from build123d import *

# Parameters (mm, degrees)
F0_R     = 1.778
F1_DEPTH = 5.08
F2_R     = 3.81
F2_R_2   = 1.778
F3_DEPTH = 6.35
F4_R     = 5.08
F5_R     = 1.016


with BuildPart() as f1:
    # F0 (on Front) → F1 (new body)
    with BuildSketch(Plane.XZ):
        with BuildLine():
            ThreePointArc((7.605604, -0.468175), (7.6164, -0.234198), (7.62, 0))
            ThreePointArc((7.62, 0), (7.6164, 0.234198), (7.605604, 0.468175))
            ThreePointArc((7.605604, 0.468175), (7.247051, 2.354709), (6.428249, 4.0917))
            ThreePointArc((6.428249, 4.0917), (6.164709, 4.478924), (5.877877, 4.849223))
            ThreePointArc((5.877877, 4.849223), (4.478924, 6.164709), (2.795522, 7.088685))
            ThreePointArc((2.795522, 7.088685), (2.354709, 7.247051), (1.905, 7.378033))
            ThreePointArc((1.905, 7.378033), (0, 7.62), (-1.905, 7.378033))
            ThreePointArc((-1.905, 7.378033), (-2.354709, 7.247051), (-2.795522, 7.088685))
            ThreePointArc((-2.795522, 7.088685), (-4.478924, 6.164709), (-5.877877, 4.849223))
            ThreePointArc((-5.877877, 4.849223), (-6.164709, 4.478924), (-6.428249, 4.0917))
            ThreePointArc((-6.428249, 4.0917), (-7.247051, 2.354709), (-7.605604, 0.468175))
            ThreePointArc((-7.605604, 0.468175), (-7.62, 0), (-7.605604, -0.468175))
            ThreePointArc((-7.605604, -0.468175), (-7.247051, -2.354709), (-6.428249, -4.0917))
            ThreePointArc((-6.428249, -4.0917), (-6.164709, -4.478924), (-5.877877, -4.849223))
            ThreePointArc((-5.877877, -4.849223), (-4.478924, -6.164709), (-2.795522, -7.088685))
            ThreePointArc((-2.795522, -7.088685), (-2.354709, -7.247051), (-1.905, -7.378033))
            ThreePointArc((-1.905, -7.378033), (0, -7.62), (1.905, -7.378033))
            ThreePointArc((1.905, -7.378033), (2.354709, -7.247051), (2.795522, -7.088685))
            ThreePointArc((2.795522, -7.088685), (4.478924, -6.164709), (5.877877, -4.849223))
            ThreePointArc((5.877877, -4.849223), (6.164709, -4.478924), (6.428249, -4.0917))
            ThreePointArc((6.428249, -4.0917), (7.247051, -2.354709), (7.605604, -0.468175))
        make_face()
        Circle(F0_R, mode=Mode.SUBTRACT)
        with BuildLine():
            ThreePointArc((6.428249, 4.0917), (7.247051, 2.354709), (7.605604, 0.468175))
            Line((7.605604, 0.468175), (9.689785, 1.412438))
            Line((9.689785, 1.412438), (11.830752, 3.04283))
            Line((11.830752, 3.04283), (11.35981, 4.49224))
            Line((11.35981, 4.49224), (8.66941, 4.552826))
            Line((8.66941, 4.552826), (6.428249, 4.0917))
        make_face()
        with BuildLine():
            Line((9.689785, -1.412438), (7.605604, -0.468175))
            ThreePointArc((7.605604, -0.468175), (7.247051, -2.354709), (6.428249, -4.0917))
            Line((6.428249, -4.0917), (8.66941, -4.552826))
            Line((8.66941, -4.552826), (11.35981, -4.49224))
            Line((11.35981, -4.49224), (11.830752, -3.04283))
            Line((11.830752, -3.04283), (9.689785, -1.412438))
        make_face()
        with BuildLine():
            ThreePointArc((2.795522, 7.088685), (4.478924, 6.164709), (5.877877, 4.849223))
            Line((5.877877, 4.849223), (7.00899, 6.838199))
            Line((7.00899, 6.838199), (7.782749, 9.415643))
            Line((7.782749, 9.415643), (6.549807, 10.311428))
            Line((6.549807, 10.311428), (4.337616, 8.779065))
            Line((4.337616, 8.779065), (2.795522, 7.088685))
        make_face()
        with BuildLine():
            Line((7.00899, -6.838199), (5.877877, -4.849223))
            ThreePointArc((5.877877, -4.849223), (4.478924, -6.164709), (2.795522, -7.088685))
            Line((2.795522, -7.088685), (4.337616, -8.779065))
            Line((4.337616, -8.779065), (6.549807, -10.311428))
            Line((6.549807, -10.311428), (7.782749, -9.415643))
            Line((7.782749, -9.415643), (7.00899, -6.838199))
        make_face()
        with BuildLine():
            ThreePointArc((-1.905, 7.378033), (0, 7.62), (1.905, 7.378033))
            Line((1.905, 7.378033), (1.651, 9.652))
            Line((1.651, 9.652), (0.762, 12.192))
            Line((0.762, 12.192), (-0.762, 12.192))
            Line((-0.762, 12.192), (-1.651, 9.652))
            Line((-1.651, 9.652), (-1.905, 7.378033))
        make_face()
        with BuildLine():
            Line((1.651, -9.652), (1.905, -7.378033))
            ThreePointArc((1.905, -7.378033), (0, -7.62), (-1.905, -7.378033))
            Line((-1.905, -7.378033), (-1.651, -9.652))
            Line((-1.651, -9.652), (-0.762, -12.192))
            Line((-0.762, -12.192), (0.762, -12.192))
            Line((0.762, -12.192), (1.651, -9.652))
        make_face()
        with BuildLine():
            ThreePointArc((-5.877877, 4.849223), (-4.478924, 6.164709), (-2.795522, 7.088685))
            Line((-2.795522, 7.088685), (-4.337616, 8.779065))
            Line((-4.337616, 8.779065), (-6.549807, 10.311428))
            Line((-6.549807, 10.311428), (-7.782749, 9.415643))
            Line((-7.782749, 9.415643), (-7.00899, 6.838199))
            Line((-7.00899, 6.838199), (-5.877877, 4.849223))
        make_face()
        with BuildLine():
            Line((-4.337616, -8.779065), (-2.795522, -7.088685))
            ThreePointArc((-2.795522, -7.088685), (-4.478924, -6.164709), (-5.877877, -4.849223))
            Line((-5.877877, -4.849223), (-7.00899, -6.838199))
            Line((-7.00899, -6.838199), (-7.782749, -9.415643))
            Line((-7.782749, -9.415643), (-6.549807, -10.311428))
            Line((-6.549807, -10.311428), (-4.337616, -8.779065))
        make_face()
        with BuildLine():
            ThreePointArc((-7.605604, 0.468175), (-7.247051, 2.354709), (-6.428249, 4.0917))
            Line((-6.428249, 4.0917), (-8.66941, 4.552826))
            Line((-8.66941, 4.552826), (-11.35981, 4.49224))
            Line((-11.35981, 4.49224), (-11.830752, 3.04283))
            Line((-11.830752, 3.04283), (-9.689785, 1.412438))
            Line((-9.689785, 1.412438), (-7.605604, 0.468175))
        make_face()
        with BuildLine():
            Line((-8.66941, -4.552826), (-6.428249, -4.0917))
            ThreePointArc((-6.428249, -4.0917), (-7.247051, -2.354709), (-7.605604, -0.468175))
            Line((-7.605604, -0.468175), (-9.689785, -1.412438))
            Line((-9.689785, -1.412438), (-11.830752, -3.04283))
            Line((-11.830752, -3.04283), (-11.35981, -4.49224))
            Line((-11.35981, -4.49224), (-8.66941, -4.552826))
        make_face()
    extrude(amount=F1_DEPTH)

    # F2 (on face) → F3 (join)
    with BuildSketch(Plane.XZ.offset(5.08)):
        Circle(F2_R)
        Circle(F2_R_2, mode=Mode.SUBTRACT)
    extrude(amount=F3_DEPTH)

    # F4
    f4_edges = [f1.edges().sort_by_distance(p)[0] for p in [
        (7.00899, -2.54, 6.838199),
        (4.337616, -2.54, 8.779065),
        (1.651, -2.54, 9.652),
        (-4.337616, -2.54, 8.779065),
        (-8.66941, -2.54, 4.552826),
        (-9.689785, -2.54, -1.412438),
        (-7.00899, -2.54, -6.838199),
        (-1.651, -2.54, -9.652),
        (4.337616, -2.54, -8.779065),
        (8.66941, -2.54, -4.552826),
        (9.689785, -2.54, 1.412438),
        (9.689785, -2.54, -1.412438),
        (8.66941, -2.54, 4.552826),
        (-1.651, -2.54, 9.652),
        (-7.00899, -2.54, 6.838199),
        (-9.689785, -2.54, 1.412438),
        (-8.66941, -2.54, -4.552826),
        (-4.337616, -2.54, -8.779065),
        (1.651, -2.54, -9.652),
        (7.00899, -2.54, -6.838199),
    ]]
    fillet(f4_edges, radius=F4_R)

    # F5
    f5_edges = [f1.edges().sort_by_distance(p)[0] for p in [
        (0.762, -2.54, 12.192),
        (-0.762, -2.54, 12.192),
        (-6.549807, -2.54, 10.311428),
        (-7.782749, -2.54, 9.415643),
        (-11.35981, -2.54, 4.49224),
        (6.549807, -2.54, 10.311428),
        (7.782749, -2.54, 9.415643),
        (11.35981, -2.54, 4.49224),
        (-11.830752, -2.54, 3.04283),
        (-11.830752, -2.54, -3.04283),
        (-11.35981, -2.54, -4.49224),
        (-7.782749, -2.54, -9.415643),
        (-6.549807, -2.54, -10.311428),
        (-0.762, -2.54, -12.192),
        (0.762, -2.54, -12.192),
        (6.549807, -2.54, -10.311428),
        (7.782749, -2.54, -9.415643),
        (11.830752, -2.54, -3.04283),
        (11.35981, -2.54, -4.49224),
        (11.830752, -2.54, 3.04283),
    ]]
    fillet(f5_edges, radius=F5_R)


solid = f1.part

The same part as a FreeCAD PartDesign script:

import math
import FreeCAD as App
import Part
import Sketcher
Q = App.Units.Quantity


def edges_at(feature, points):
    """Names of the edges that pass closest to the given points."""
    edges = feature.Shape.Edges
    near = lambda p: min(range(len(edges)), key=lambda i: edges[i].distToShape(Part.Vertex(*p))[0])
    return sorted({f"Edge{near(p) + 1}" for p in points})

doc = App.newDocument("Part")
params = doc.addObject("Spreadsheet::Sheet", "Params")
for row, (alias, value) in enumerate([
    ("sketch1_radius", "0.3 in"),
    ("sketch1_diameter", "0.14 in"),
    ("sketch1_width", "0.06 in"),
    ("sketch1_length", "0.06 in"),
    ("pad1_length", "0.2 in"),
    ("sketch2_diameter", "0.3 in"),
    ("sketch2_diameter2", "0.14 in"),
    ("pad2_length", "0.25 in"),
    ("fillet_radius", "0.2 in"),
    ("fillet2_radius", "0.04 in"),
], start=1):
    params.set(f"A{row}", alias)
    params.set(f"B{row}", "=" + value)
    params.setAlias(f"B{row}", alias)

body = doc.addObject("PartDesign::Body", "Body")

# Sketch on XZ plane
sketch1 = body.newObject("Sketcher::SketchObject", "Sketch")
sketch1.AttachmentSupport = (doc.getObject("XZ_Plane"), [""])
sketch1.MapMode = "FlatFace"
sketch1.addGeometry([
    Part.ArcOfCircle(Part.Circle(App.Vector(-0.000327, 0.00001, 0), App.Vector(0, 0, 1), 7.620327), math.radians(-3.522412), math.radians(-0.000075)),  # 0
    Part.ArcOfCircle(Part.Circle(App.Vector(-0.000327, -0.00001, 0), App.Vector(0, 0, 1), 7.620327), math.radians(0.000075), math.radians(3.522412)),  # 1
    Part.LineSegment(App.Vector(7.605604, 0.468175, 0), App.Vector(9.689785, 1.412438, 0)),  # 2
    Part.LineSegment(App.Vector(9.689785, 1.412438, 0), App.Vector(11.830752, 3.04283, 0)),  # 3
    Part.LineSegment(App.Vector(11.830752, 3.04283, 0), App.Vector(11.35981, 4.49224, 0)),  # 4
    Part.LineSegment(App.Vector(11.35981, 4.49224, 0), App.Vector(8.66941, 4.552826, 0)),  # 5
    Part.LineSegment(App.Vector(8.66941, 4.552826, 0), App.Vector(6.428249, 4.0917, 0)),  # 6
    Part.ArcOfCircle(Part.Circle(App.Vector(-0.000021, -0.00001, 0), App.Vector(0, 0, 1), 7.620023), math.radians(32.477491), math.radians(39.522442)),  # 7
    Part.LineSegment(App.Vector(5.877877, 4.849223, 0), App.Vector(7.00899, 6.838199, 0)),  # 8
    Part.LineSegment(App.Vector(7.00899, 6.838199, 0), App.Vector(7.782749, 9.415643, 0)),  # 9
    Part.LineSegment(App.Vector(7.782749, 9.415643, 0), App.Vector(6.549807, 10.311428, 0)),  # 10
    Part.LineSegment(App.Vector(6.549807, 10.311428, 0), App.Vector(4.337616, 8.779065, 0)),  # 11
    Part.LineSegment(App.Vector(4.337616, 8.779065, 0), App.Vector(2.795522, 7.088685, 0)),  # 12
    Part.ArcOfCircle(Part.Circle(App.Vector(0.000061, 0.000183, 0), App.Vector(0, 0, 1), 7.619807), math.radians(68.47743), math.radians(75.522586)),  # 13
    Part.LineSegment(App.Vector(1.905, 7.378033, 0), App.Vector(1.651, 9.652, 0)),  # 14
    Part.LineSegment(App.Vector(1.651, 9.652, 0), App.Vector(0.762, 12.192, 0)),  # 15
    Part.LineSegment(App.Vector(0.762, 12.192, 0), App.Vector(-0.762, 12.192, 0)),  # 16
    Part.LineSegment(App.Vector(-0.762, 12.192, 0), App.Vector(-1.651, 9.652, 0)),  # 17
    Part.LineSegment(App.Vector(-1.651, 9.652, 0), App.Vector(-1.905, 7.378033, 0)),  # 18
    Part.ArcOfCircle(Part.Circle(App.Vector(-0.000061, 0.000183, 0), App.Vector(0, 0, 1), 7.619807), math.radians(104.477414), math.radians(111.52257)),  # 19
    Part.LineSegment(App.Vector(-2.795522, 7.088685, 0), App.Vector(-4.337616, 8.779065, 0)),  # 20
    Part.LineSegment(App.Vector(-4.337616, 8.779065, 0), App.Vector(-6.549807, 10.311428, 0)),  # 21
    Part.LineSegment(App.Vector(-6.549807, 10.311428, 0), App.Vector(-7.782749, 9.415643, 0)),  # 22
    Part.LineSegment(App.Vector(-7.782749, 9.415643, 0), App.Vector(-7.00899, 6.838199, 0)),  # 23
    Part.LineSegment(App.Vector(-7.00899, 6.838199, 0), App.Vector(-5.877877, 4.849223, 0)),  # 24
    Part.ArcOfCircle(Part.Circle(App.Vector(0.000021, -0.00001, 0), App.Vector(0, 0, 1), 7.620023), math.radians(140.477558), math.radians(147.522509)),  # 25
    Part.LineSegment(App.Vector(-6.428249, 4.0917, 0), App.Vector(-8.66941, 4.552826, 0)),  # 26
    Part.LineSegment(App.Vector(-8.66941, 4.552826, 0), App.Vector(-11.35981, 4.49224, 0)),  # 27
    Part.LineSegment(App.Vector(-11.35981, 4.49224, 0), App.Vector(-11.830752, 3.04283, 0)),  # 28
    Part.LineSegment(App.Vector(-11.830752, 3.04283, 0), App.Vector(-9.689785, 1.412438, 0)),  # 29
    Part.LineSegment(App.Vector(-9.689785, 1.412438, 0), App.Vector(-7.605604, 0.468175, 0)),  # 30
    Part.ArcOfCircle(Part.Circle(App.Vector(0.000001, 0, 0), App.Vector(0, 0, 1), 7.620001), math.radians(176.477513), math.radians(183.522487)),  # 31
    Part.LineSegment(App.Vector(-7.605604, -0.468175, 0), App.Vector(-9.689785, -1.412438, 0)),  # 32
    Part.LineSegment(App.Vector(-9.689785, -1.412438, 0), App.Vector(-11.830752, -3.04283, 0)),  # 33
    Part.LineSegment(App.Vector(-11.830752, -3.04283, 0), App.Vector(-11.35981, -4.49224, 0)),  # 34
    Part.LineSegment(App.Vector(-11.35981, -4.49224, 0), App.Vector(-8.66941, -4.552826, 0)),  # 35
    Part.LineSegment(App.Vector(-8.66941, -4.552826, 0), App.Vector(-6.428249, -4.0917, 0)),  # 36
    Part.ArcOfCircle(Part.Circle(App.Vector(0.000021, 0.00001, 0), App.Vector(0, 0, 1), 7.620023), math.radians(-147.522509), math.radians(-140.477558)),  # 37
    Part.LineSegment(App.Vector(-5.877877, -4.849223, 0), App.Vector(-7.00899, -6.838199, 0)),  # 38
    Part.LineSegment(App.Vector(-7.00899, -6.838199, 0), App.Vector(-7.782749, -9.415643, 0)),  # 39
    Part.LineSegment(App.Vector(-7.782749, -9.415643, 0), App.Vector(-6.549807, -10.311428, 0)),  # 40
    Part.LineSegment(App.Vector(-6.549807, -10.311428, 0), App.Vector(-4.337616, -8.779065, 0)),  # 41
    Part.LineSegment(App.Vector(-4.337616, -8.779065, 0), App.Vector(-2.795522, -7.088685, 0)),  # 42
    Part.ArcOfCircle(Part.Circle(App.Vector(-0.000061, -0.000183, 0), App.Vector(0, 0, 1), 7.619807), math.radians(-111.52257), math.radians(-104.477414)),  # 43
    Part.LineSegment(App.Vector(-1.905, -7.378033, 0), App.Vector(-1.651, -9.652, 0)),  # 44
    Part.LineSegment(App.Vector(-1.651, -9.652, 0), App.Vector(-0.762, -12.192, 0)),  # 45
    Part.LineSegment(App.Vector(-0.762, -12.192, 0), App.Vector(0.762, -12.192, 0)),  # 46
    Part.LineSegment(App.Vector(0.762, -12.192, 0), App.Vector(1.651, -9.652, 0)),  # 47
    Part.LineSegment(App.Vector(1.651, -9.652, 0), App.Vector(1.905, -7.378033, 0)),  # 48
    Part.ArcOfCircle(Part.Circle(App.Vector(0.000061, -0.000183, 0), App.Vector(0, 0, 1), 7.619807), math.radians(-75.522586), math.radians(-68.47743)),  # 49
    Part.LineSegment(App.Vector(2.795522, -7.088685, 0), App.Vector(4.337616, -8.779065, 0)),  # 50
    Part.LineSegment(App.Vector(4.337616, -8.779065, 0), App.Vector(6.549807, -10.311428, 0)),  # 51
    Part.LineSegment(App.Vector(6.549807, -10.311428, 0), App.Vector(7.782749, -9.415643, 0)),  # 52
    Part.LineSegment(App.Vector(7.782749, -9.415643, 0), App.Vector(7.00899, -6.838199, 0)),  # 53
    Part.LineSegment(App.Vector(7.00899, -6.838199, 0), App.Vector(5.877877, -4.849223, 0)),  # 54
    Part.ArcOfCircle(Part.Circle(App.Vector(-0.000021, 0.00001, 0), App.Vector(0, 0, 1), 7.620023), math.radians(-39.522442), math.radians(-32.477491)),  # 55
    Part.LineSegment(App.Vector(6.428249, -4.0917, 0), App.Vector(8.66941, -4.552826, 0)),  # 56
    Part.LineSegment(App.Vector(8.66941, -4.552826, 0), App.Vector(11.35981, -4.49224, 0)),  # 57
    Part.LineSegment(App.Vector(11.35981, -4.49224, 0), App.Vector(11.830752, -3.04283, 0)),  # 58
    Part.LineSegment(App.Vector(11.830752, -3.04283, 0), App.Vector(9.689785, -1.412438, 0)),  # 59
    Part.LineSegment(App.Vector(9.689785, -1.412438, 0), App.Vector(7.605604, -0.468175, 0)),  # 60
    Part.Circle(App.Vector(0, 0, 0), App.Vector(0, 0, 1), 1.778),  # 61
], False)
sketch1.addConstraint([
    Sketcher.Constraint("Coincident", 0, 2, 1, 1),
    Sketcher.Constraint("Coincident", 1, 2, 2, 1),
    Sketcher.Constraint("Coincident", 2, 2, 3, 1),
    Sketcher.Constraint("Coincident", 3, 2, 4, 1),
    Sketcher.Constraint("Coincident", 4, 2, 5, 1),
    Sketcher.Constraint("Coincident", 5, 2, 6, 1),
    Sketcher.Constraint("Coincident", 6, 2, 7, 1),
    Sketcher.Constraint("Coincident", 7, 2, 8, 1),
    Sketcher.Constraint("Coincident", 8, 2, 9, 1),
    Sketcher.Constraint("Coincident", 9, 2, 10, 1),
    Sketcher.Constraint("Coincident", 10, 2, 11, 1),
    Sketcher.Constraint("Coincident", 11, 2, 12, 1),
    Sketcher.Constraint("Coincident", 12, 2, 13, 1),
    Sketcher.Constraint("Coincident", 13, 2, 14, 1),
    Sketcher.Constraint("Coincident", 14, 2, 15, 1),
    Sketcher.Constraint("Coincident", 15, 2, 16, 1),
    Sketcher.Constraint("Coincident", 16, 2, 17, 1),
    Sketcher.Constraint("Coincident", 17, 2, 18, 1),
    Sketcher.Constraint("Coincident", 18, 2, 19, 1),
    Sketcher.Constraint("Coincident", 19, 2, 20, 1),
    Sketcher.Constraint("Coincident", 20, 2, 21, 1),
    Sketcher.Constraint("Coincident", 21, 2, 22, 1),
    Sketcher.Constraint("Coincident", 22, 2, 23, 1),
    Sketcher.Constraint("Coincident", 23, 2, 24, 1),
    Sketcher.Constraint("Coincident", 24, 2, 25, 1),
    Sketcher.Constraint("Coincident", 25, 2, 26, 1),
    Sketcher.Constraint("Coincident", 26, 2, 27, 1),
    Sketcher.Constraint("Coincident", 27, 2, 28, 1),
    Sketcher.Constraint("Coincident", 28, 2, 29, 1),
    Sketcher.Constraint("Coincident", 29, 2, 30, 1),
    Sketcher.Constraint("Coincident", 30, 2, 31, 1),
    Sketcher.Constraint("Coincident", 31, 2, 32, 1),
    Sketcher.Constraint("Coincident", 32, 2, 33, 1),
    Sketcher.Constraint("Coincident", 33, 2, 34, 1),
    Sketcher.Constraint("Coincident", 34, 2, 35, 1),
    Sketcher.Constraint("Coincident", 35, 2, 36, 1),
    Sketcher.Constraint("Coincident", 36, 2, 37, 1),
    Sketcher.Constraint("Coincident", 37, 2, 38, 1),
    Sketcher.Constraint("Coincident", 38, 2, 39, 1),
    Sketcher.Constraint("Coincident", 39, 2, 40, 1),
    Sketcher.Constraint("Coincident", 40, 2, 41, 1),
    Sketcher.Constraint("Coincident", 41, 2, 42, 1),
    Sketcher.Constraint("Coincident", 42, 2, 43, 1),
    Sketcher.Constraint("Coincident", 43, 2, 44, 1),
    Sketcher.Constraint("Coincident", 44, 2, 45, 1),
    Sketcher.Constraint("Coincident", 45, 2, 46, 1),
    Sketcher.Constraint("Coincident", 46, 2, 47, 1),
    Sketcher.Constraint("Coincident", 47, 2, 48, 1),
    Sketcher.Constraint("Coincident", 48, 2, 49, 1),
    Sketcher.Constraint("Coincident", 49, 2, 50, 1),
    Sketcher.Constraint("Coincident", 50, 2, 51, 1),
    Sketcher.Constraint("Coincident", 51, 2, 52, 1),
    Sketcher.Constraint("Coincident", 52, 2, 53, 1),
    Sketcher.Constraint("Coincident", 53, 2, 54, 1),
    Sketcher.Constraint("Coincident", 54, 2, 55, 1),
    Sketcher.Constraint("Coincident", 55, 2, 56, 1),
    Sketcher.Constraint("Coincident", 56, 2, 57, 1),
    Sketcher.Constraint("Coincident", 57, 2, 58, 1),
    Sketcher.Constraint("Coincident", 58, 2, 59, 1),
    Sketcher.Constraint("Coincident", 59, 2, 60, 1),
    Sketcher.Constraint("Coincident", 60, 2, 0, 1),
    Sketcher.Constraint("Horizontal", 16),
    Sketcher.Constraint("Horizontal", 46),
    Sketcher.Constraint("Coincident", 31, 3, -1, 1),
    Sketcher.Constraint("Coincident", 61, 3, -1, 1),
    Sketcher.Constraint("Equal", 0, 1),
    Sketcher.Constraint("Equal", 13, 19),
    Sketcher.Constraint("Equal", 7, 25),
    Sketcher.Constraint("Equal", 25, 37),
    Sketcher.Constraint("Equal", 19, 43),
    Sketcher.Constraint("Equal", 43, 49),
    Sketcher.Constraint("Equal", 37, 55),
    Sketcher.Constraint("Symmetric", 7, 3, 37, 3, -1, 1),
    Sketcher.Constraint("Symmetric", 13, 3, 43, 3, -1, 1),
    Sketcher.Constraint("Symmetric", 19, 3, 49, 3, -1, 1),
    Sketcher.Constraint("Symmetric", 25, 3, 55, 3, -1, 1),
    Sketcher.Constraint("Symmetric", 1, 2, 31, 2, -1, 1),
    Sketcher.Constraint("Symmetric", 2, 2, 32, 2, -1, 1),
    Sketcher.Constraint("Symmetric", 3, 2, 33, 2, -1, 1),
    Sketcher.Constraint("Symmetric", 4, 2, 34, 2, -1, 1),
    Sketcher.Constraint("Symmetric", 5, 2, 35, 2, -1, 1),
    Sketcher.Constraint("Symmetric", 8, 2, 38, 2, -1, 1),
    Sketcher.Constraint("Symmetric", 9, 2, 39, 2, -1, 1),
    Sketcher.Constraint("Symmetric", 10, 2, 40, 2, -1, 1),
    Sketcher.Constraint("Symmetric", 11, 2, 41, 2, -1, 1),
    Sketcher.Constraint("Symmetric", 14, 2, 44, 2, -1, 1),
    Sketcher.Constraint("Symmetric", 15, 2, 45, 2, -1, 1),
    Sketcher.Constraint("Symmetric", 17, 2, 47, 2, -1, 1),
    Sketcher.Constraint("Symmetric", 20, 2, 50, 2, -1, 1),
    Sketcher.Constraint("Symmetric", 21, 2, 51, 2, -1, 1),
    Sketcher.Constraint("Symmetric", 22, 2, 52, 2, -1, 1),
    Sketcher.Constraint("Symmetric", 23, 2, 53, 2, -1, 1),
    Sketcher.Constraint("Symmetric", 26, 2, 56, 2, -1, 1),
    Sketcher.Constraint("Symmetric", 27, 2, 57, 2, -1, 1),
    Sketcher.Constraint("Symmetric", 28, 2, 58, 2, -1, 1),
    Sketcher.Constraint("Symmetric", 29, 2, 59, 2, -1, 1),
    Sketcher.Constraint("Symmetric", 30, 2, 60, 2, -1, 1),
    Sketcher.Constraint("Symmetric", 13, 3, 19, 3, -2),
    Sketcher.Constraint("Symmetric", 7, 3, 25, 3, -2),
    Sketcher.Constraint("Symmetric", 14, 2, 17, 2, -2),
    Sketcher.Constraint("Symmetric", 11, 2, 20, 2, -2),
    Sketcher.Constraint("Symmetric", 10, 2, 21, 2, -2),
    Sketcher.Constraint("Symmetric", 9, 2, 22, 2, -2),
    Sketcher.Constraint("Symmetric", 8, 2, 23, 2, -2),
    Sketcher.Constraint("Symmetric", 5, 2, 26, 2, -2),
    Sketcher.Constraint("Symmetric", 4, 2, 27, 2, -2),
    Sketcher.Constraint("Symmetric", 3, 2, 28, 2, -2),
    Sketcher.Constraint("Symmetric", 2, 2, 29, 2, -2),
    Sketcher.Constraint("PointOnObject", 0, 2, -1),
    Sketcher.Constraint("Parallel", 6, 36),
    Sketcher.Constraint("Parallel", 8, 38),
    Sketcher.Constraint("Parallel", 12, 42),
    Sketcher.Constraint("Parallel", 14, 44),
    Sketcher.Constraint("Parallel", 17, 47),
    Sketcher.Constraint("Parallel", 18, 48),
    Sketcher.Constraint("Parallel", 20, 50),
    Sketcher.Constraint("Parallel", 24, 54),
    Sketcher.Constraint("Parallel", 26, 56),
    Sketcher.Constraint("Horizontal", 1, 3, 7, 3),
    Sketcher.Constraint("Horizontal", 13, 2, 18, 2),
    Sketcher.Constraint("Horizontal", 12, 2, 19, 2),
    Sketcher.Constraint("Horizontal", 7, 2, 24, 2),
    Sketcher.Constraint("Horizontal", 6, 2, 25, 2),
    Sketcher.Constraint("Horizontal", 1, 2, 30, 2),
    Sketcher.Constraint("Vertical", 16, 2, 45, 2),
    Sketcher.Constraint("Equal", 3, 5),
    Sketcher.Constraint("Equal", 2, 6),
    Sketcher.Constraint("Equal", 6, 8),
    Sketcher.Constraint("Equal", 5, 9),
    Sketcher.Constraint("Equal", 4, 10),
    Sketcher.Constraint("Equal", 9, 11),
    Sketcher.Constraint("Equal", 8, 12),
    Sketcher.Constraint("Equal", 12, 14),
    Sketcher.Constraint("Equal", 11, 15),
    Sketcher.Constraint("Radius", 31, Q("0.3 in")),
    Sketcher.Constraint("Diameter", 61, Q("0.14 in")),
    Sketcher.Constraint("Angle", 4, Q("108.000005 deg")),
    Sketcher.Constraint("Angle", 10, Q("143.999994 deg")),
    Sketcher.Constraint("DistanceX", 16, 2, 16, 1, Q("0.06 in")),
    Sketcher.Constraint("DistanceX", -1, 1, 0, 2, Q("0.3 in")),
    Sketcher.Constraint("Distance", 4, Q("0.06 in")),
    Sketcher.Constraint("DistanceY", -1, 1, 14, 2, Q("0.38 in")),
    Sketcher.Constraint("DistanceY", -1, 1, 15, 2, Q("0.48 in")),
    Sketcher.Constraint("DistanceX", -1, 1, 13, 2, Q("0.075 in")),
    Sketcher.Constraint("DistanceX", -1, 1, 14, 2, Q("0.065 in")),
    Sketcher.Constraint("Radius", 0, Q("7.620327 mm")),
    Sketcher.Constraint("Radius", 7, Q("7.620023 mm")),
    Sketcher.Constraint("Radius", 13, Q("7.619807 mm")),
    Sketcher.Constraint("DistanceY", -1, 1, 6, 2, Q("4.0917 mm")),
    Sketcher.Constraint("DistanceY", -1, 1, 8, 2, Q("6.838199 mm")),
    Sketcher.Constraint("Distance", 2, Q("2.288109 mm")),
    Sketcher.Constraint("DistanceY", -1, 1, 2, 2, Q("1.412438 mm")),
    Sketcher.Constraint("DistanceY", -1, 1, 3, 2, Q("3.04283 mm")),
    Sketcher.Constraint("DistanceX", -1, 1, 4, 2, Q("11.35981 mm")),
    Sketcher.Constraint("DistanceX", -1, 1, 5, 2, Q("8.66941 mm")),
    Sketcher.Constraint("DistanceX", -1, 1, 8, 2, Q("7.00899 mm")),
    Sketcher.Constraint("DistanceX", -1, 1, 9, 2, Q("7.782749 mm")),
    Sketcher.Constraint("DistanceX", 19, 2, -1, 1, Q("2.795522 mm")),
    Sketcher.Constraint("DistanceY", -1, 1, 13, 3, Q("0.000183 mm")),
])
sketch1.setExpression("Constraints[134]", "Params.sketch1_radius")
sketch1.setExpression("Constraints[135]", "Params.sketch1_diameter")
sketch1.setExpression("Constraints[138]", "Params.sketch1_width")
sketch1.setExpression("Constraints[140]", "Params.sketch1_length")
pad1 = body.newObject("PartDesign::Pad", "Pad")
pad1.Profile = sketch1
pad1.setExpression("Length", "Params.pad1_length")

# Sketch on XZ plane
sketch2 = body.newObject("Sketcher::SketchObject", "Sketch001")
sketch2.AttachmentSupport = (doc.getObject("XZ_Plane"), [""])
sketch2.MapMode = "FlatFace"
sketch2.AttachmentOffset = App.Placement(App.Vector(0, 0, 0.2 * 25.4), App.Rotation())
sketch2.addGeometry([
    Part.Circle(App.Vector(0, 0, 0), App.Vector(0, 0, 1), 3.8),
    Part.Circle(App.Vector(0, 0, 0), App.Vector(0, 0, 1), 1.8),
], False)
sketch2.addConstraint([
    Sketcher.Constraint("Coincident", 0, 3, -1, 1),
    Sketcher.Constraint("Coincident", 1, 3, -1, 1),
    Sketcher.Constraint("Diameter", 0, Q("0.3 in")),
    Sketcher.Constraint("Diameter", 1, Q("0.14 in")),
])
sketch2.setExpression("Constraints[2]", "Params.sketch2_diameter")
sketch2.setExpression("Constraints[3]", "Params.sketch2_diameter2")
pad2 = body.newObject("PartDesign::Pad", "Pad001")
pad2.Profile = sketch2
pad2.setExpression("Length", "Params.pad2_length")
doc.recompute()

fillet = body.newObject("PartDesign::Fillet", "Fillet")
fillet.Base = (pad2, edges_at(pad2, [
    (7.009, -2.54, 6.838),
    (4.338, -2.54, 8.779),
    (1.651, -2.54, 9.652),
    (-4.338, -2.54, 8.779),
    (-8.669, -2.54, 4.553),
    (-9.69, -2.54, -1.412),
    (-7.009, -2.54, -6.838),
    (-1.651, -2.54, -9.652),
    (4.338, -2.54, -8.779),
    (8.669, -2.54, -4.553),
    (9.69, -2.54, 1.412),
    (9.69, -2.54, -1.412),
    (8.669, -2.54, 4.553),
    (-1.651, -2.54, 9.652),
    (-7.009, -2.54, 6.838),
    (-9.69, -2.54, 1.412),
    (-8.669, -2.54, -4.553),
    (-4.338, -2.54, -8.779),
    (1.651, -2.54, -9.652),
    (7.009, -2.54, -6.838),
]))
fillet.setExpression("Radius", "Params.fillet_radius")
doc.recompute()

fillet2 = body.newObject("PartDesign::Fillet", "Fillet001")
fillet2.Base = (fillet, edges_at(fillet, [
    (0.762, -2.54, 12.192),
    (-0.762, -2.54, 12.192),
    (-6.55, -2.54, 10.311),
    (-7.783, -2.54, 9.416),
    (-11.36, -2.54, 4.492),
    (6.55, -2.54, 10.311),
    (7.783, -2.54, 9.416),
    (11.36, -2.54, 4.492),
    (-11.831, -2.54, 3.043),
    (-11.831, -2.54, -3.043),
    (-11.36, -2.54, -4.492),
    (-7.783, -2.54, -9.416),
    (-6.55, -2.54, -10.311),
    (-0.762, -2.54, -12.192),
    (0.762, -2.54, -12.192),
    (6.55, -2.54, -10.311),
    (7.783, -2.54, -9.416),
    (11.831, -2.54, -3.043),
    (11.36, -2.54, -4.492),
    (11.831, -2.54, 3.043),
]))
fillet2.setExpression("Radius", "Params.fillet2_radius")

doc.recompute()
